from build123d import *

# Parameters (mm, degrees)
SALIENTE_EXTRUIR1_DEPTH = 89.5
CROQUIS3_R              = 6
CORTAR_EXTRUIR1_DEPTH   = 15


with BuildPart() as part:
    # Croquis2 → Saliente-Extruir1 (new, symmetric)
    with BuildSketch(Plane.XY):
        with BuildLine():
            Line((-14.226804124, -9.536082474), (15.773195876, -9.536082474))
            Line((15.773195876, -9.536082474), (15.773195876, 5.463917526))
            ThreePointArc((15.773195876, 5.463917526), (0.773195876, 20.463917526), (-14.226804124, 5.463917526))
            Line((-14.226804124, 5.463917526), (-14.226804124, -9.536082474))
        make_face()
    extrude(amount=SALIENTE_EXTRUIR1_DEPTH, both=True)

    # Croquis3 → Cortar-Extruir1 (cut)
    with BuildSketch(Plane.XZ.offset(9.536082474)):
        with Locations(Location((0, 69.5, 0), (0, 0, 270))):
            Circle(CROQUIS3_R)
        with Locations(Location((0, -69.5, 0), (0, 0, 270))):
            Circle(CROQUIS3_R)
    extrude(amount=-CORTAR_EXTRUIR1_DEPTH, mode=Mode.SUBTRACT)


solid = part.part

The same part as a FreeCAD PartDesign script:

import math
import FreeCAD as App
import Part
import Sketcher

doc = App.newDocument("Part")
body = doc.addObject("PartDesign::Body", "Body")

# Sketch on XY plane
sketch1 = body.newObject("Sketcher::SketchObject", "Sketch")
sketch1.AttachmentSupport = (doc.getObject("XY_Plane"), [""])
sketch1.MapMode = "FlatFace"
sketch1.addGeometry(Part.LineSegment(App.Vector(-14, -10, 0), App.Vector(16, -10, 0)), False)
sketch1.addGeometry(Part.LineSegment(App.Vector(16, -10, 0), App.Vector(16, 5, 0)), False)
sketch1.addGeometry(Part.ArcOfCircle(Part.Circle(App.Vector(1, 5, 0), App.Vector(0, 0, 1), 15), math.radians(0), math.radians(180)), False)
sketch1.addGeometry(Part.LineSegment(App.Vector(-14, 5, 0), App.Vector(-14, -10, 0)), False)
sketch1.addConstraint(Sketcher.Constraint("Coincident", 0, 2, 1, 1))
sketch1.addConstraint(Sketcher.Constraint("Tangent", 1, 2, 2, 1))
sketch1.addConstraint(Sketcher.Constraint("Tangent", 2, 2, 3, 1))
sketch1.addConstraint(Sketcher.Constraint("Coincident", 3, 2, 0, 1))
sketch1.addConstraint(Sketcher.Constraint("Horizontal", 0))
sketch1.addConstraint(Sketcher.Constraint("Vertical", 1))
sketch1.addConstraint(Sketcher.Constraint("Vertical", 3))
sketch1.addConstraint(Sketcher.Constraint("Radius", 2, 15.0))
sketch1.addConstraint(Sketcher.Constraint("DistanceY", 1, 1, 1, 2, 15.0))
sketch1.addConstraint(Sketcher.Constraint("DistanceX", -1, 1, 2, 3, 0.773196))
sketch1.addConstraint(Sketcher.Constraint("DistanceY", -1, 1, 2, 3, 5.463918))
pad1 = body.newObject("PartDesign::Pad", "Pad")
pad1.Profile = sketch1
pad1.Length = 179
pad1.Midplane = True

# Sketch on XZ plane
sketch2 = body.newObject("Sketcher::SketchObject", "Sketch001")
sketch2.AttachmentSupport = (doc.getObject("XZ_Plane"), [""])
sketch2.MapMode = "FlatFace"
sketch2.AttachmentOffset = App.Placement(App.Vector(0, 0, 9.536082), App.Rotation())
sketch2.addGeometry(Part.Circle(App.Vector(0, 70, 0), App.Vector(0, 0, 1), 6), False)
sketch2.addGeometry(Part.Circle(App.Vector(0, -70, 0), App.Vector(0, 0, 1), 6), False)
sketch2.addConstraint(Sketcher.Constraint("Equal", 0, 1))
sketch2.addConstraint(Sketcher.Constraint("Symmetric", 0, 3, 1, 3, -1, 1))
sketch2.addConstraint(Sketcher.Constraint("PointOnObject", 0, 3, -2))
sketch2.addConstraint(Sketcher.Constraint("Diameter", 0, 12.0))
sketch2.addConstraint(Sketcher.Constraint("DistanceY", 1, 3, 0, 3, 139.0))
pocket1 = body.newObject("PartDesign::Pocket", "Pocket")
pocket1.Profile = sketch2
pocket1.Length = 15

doc.recompute()
